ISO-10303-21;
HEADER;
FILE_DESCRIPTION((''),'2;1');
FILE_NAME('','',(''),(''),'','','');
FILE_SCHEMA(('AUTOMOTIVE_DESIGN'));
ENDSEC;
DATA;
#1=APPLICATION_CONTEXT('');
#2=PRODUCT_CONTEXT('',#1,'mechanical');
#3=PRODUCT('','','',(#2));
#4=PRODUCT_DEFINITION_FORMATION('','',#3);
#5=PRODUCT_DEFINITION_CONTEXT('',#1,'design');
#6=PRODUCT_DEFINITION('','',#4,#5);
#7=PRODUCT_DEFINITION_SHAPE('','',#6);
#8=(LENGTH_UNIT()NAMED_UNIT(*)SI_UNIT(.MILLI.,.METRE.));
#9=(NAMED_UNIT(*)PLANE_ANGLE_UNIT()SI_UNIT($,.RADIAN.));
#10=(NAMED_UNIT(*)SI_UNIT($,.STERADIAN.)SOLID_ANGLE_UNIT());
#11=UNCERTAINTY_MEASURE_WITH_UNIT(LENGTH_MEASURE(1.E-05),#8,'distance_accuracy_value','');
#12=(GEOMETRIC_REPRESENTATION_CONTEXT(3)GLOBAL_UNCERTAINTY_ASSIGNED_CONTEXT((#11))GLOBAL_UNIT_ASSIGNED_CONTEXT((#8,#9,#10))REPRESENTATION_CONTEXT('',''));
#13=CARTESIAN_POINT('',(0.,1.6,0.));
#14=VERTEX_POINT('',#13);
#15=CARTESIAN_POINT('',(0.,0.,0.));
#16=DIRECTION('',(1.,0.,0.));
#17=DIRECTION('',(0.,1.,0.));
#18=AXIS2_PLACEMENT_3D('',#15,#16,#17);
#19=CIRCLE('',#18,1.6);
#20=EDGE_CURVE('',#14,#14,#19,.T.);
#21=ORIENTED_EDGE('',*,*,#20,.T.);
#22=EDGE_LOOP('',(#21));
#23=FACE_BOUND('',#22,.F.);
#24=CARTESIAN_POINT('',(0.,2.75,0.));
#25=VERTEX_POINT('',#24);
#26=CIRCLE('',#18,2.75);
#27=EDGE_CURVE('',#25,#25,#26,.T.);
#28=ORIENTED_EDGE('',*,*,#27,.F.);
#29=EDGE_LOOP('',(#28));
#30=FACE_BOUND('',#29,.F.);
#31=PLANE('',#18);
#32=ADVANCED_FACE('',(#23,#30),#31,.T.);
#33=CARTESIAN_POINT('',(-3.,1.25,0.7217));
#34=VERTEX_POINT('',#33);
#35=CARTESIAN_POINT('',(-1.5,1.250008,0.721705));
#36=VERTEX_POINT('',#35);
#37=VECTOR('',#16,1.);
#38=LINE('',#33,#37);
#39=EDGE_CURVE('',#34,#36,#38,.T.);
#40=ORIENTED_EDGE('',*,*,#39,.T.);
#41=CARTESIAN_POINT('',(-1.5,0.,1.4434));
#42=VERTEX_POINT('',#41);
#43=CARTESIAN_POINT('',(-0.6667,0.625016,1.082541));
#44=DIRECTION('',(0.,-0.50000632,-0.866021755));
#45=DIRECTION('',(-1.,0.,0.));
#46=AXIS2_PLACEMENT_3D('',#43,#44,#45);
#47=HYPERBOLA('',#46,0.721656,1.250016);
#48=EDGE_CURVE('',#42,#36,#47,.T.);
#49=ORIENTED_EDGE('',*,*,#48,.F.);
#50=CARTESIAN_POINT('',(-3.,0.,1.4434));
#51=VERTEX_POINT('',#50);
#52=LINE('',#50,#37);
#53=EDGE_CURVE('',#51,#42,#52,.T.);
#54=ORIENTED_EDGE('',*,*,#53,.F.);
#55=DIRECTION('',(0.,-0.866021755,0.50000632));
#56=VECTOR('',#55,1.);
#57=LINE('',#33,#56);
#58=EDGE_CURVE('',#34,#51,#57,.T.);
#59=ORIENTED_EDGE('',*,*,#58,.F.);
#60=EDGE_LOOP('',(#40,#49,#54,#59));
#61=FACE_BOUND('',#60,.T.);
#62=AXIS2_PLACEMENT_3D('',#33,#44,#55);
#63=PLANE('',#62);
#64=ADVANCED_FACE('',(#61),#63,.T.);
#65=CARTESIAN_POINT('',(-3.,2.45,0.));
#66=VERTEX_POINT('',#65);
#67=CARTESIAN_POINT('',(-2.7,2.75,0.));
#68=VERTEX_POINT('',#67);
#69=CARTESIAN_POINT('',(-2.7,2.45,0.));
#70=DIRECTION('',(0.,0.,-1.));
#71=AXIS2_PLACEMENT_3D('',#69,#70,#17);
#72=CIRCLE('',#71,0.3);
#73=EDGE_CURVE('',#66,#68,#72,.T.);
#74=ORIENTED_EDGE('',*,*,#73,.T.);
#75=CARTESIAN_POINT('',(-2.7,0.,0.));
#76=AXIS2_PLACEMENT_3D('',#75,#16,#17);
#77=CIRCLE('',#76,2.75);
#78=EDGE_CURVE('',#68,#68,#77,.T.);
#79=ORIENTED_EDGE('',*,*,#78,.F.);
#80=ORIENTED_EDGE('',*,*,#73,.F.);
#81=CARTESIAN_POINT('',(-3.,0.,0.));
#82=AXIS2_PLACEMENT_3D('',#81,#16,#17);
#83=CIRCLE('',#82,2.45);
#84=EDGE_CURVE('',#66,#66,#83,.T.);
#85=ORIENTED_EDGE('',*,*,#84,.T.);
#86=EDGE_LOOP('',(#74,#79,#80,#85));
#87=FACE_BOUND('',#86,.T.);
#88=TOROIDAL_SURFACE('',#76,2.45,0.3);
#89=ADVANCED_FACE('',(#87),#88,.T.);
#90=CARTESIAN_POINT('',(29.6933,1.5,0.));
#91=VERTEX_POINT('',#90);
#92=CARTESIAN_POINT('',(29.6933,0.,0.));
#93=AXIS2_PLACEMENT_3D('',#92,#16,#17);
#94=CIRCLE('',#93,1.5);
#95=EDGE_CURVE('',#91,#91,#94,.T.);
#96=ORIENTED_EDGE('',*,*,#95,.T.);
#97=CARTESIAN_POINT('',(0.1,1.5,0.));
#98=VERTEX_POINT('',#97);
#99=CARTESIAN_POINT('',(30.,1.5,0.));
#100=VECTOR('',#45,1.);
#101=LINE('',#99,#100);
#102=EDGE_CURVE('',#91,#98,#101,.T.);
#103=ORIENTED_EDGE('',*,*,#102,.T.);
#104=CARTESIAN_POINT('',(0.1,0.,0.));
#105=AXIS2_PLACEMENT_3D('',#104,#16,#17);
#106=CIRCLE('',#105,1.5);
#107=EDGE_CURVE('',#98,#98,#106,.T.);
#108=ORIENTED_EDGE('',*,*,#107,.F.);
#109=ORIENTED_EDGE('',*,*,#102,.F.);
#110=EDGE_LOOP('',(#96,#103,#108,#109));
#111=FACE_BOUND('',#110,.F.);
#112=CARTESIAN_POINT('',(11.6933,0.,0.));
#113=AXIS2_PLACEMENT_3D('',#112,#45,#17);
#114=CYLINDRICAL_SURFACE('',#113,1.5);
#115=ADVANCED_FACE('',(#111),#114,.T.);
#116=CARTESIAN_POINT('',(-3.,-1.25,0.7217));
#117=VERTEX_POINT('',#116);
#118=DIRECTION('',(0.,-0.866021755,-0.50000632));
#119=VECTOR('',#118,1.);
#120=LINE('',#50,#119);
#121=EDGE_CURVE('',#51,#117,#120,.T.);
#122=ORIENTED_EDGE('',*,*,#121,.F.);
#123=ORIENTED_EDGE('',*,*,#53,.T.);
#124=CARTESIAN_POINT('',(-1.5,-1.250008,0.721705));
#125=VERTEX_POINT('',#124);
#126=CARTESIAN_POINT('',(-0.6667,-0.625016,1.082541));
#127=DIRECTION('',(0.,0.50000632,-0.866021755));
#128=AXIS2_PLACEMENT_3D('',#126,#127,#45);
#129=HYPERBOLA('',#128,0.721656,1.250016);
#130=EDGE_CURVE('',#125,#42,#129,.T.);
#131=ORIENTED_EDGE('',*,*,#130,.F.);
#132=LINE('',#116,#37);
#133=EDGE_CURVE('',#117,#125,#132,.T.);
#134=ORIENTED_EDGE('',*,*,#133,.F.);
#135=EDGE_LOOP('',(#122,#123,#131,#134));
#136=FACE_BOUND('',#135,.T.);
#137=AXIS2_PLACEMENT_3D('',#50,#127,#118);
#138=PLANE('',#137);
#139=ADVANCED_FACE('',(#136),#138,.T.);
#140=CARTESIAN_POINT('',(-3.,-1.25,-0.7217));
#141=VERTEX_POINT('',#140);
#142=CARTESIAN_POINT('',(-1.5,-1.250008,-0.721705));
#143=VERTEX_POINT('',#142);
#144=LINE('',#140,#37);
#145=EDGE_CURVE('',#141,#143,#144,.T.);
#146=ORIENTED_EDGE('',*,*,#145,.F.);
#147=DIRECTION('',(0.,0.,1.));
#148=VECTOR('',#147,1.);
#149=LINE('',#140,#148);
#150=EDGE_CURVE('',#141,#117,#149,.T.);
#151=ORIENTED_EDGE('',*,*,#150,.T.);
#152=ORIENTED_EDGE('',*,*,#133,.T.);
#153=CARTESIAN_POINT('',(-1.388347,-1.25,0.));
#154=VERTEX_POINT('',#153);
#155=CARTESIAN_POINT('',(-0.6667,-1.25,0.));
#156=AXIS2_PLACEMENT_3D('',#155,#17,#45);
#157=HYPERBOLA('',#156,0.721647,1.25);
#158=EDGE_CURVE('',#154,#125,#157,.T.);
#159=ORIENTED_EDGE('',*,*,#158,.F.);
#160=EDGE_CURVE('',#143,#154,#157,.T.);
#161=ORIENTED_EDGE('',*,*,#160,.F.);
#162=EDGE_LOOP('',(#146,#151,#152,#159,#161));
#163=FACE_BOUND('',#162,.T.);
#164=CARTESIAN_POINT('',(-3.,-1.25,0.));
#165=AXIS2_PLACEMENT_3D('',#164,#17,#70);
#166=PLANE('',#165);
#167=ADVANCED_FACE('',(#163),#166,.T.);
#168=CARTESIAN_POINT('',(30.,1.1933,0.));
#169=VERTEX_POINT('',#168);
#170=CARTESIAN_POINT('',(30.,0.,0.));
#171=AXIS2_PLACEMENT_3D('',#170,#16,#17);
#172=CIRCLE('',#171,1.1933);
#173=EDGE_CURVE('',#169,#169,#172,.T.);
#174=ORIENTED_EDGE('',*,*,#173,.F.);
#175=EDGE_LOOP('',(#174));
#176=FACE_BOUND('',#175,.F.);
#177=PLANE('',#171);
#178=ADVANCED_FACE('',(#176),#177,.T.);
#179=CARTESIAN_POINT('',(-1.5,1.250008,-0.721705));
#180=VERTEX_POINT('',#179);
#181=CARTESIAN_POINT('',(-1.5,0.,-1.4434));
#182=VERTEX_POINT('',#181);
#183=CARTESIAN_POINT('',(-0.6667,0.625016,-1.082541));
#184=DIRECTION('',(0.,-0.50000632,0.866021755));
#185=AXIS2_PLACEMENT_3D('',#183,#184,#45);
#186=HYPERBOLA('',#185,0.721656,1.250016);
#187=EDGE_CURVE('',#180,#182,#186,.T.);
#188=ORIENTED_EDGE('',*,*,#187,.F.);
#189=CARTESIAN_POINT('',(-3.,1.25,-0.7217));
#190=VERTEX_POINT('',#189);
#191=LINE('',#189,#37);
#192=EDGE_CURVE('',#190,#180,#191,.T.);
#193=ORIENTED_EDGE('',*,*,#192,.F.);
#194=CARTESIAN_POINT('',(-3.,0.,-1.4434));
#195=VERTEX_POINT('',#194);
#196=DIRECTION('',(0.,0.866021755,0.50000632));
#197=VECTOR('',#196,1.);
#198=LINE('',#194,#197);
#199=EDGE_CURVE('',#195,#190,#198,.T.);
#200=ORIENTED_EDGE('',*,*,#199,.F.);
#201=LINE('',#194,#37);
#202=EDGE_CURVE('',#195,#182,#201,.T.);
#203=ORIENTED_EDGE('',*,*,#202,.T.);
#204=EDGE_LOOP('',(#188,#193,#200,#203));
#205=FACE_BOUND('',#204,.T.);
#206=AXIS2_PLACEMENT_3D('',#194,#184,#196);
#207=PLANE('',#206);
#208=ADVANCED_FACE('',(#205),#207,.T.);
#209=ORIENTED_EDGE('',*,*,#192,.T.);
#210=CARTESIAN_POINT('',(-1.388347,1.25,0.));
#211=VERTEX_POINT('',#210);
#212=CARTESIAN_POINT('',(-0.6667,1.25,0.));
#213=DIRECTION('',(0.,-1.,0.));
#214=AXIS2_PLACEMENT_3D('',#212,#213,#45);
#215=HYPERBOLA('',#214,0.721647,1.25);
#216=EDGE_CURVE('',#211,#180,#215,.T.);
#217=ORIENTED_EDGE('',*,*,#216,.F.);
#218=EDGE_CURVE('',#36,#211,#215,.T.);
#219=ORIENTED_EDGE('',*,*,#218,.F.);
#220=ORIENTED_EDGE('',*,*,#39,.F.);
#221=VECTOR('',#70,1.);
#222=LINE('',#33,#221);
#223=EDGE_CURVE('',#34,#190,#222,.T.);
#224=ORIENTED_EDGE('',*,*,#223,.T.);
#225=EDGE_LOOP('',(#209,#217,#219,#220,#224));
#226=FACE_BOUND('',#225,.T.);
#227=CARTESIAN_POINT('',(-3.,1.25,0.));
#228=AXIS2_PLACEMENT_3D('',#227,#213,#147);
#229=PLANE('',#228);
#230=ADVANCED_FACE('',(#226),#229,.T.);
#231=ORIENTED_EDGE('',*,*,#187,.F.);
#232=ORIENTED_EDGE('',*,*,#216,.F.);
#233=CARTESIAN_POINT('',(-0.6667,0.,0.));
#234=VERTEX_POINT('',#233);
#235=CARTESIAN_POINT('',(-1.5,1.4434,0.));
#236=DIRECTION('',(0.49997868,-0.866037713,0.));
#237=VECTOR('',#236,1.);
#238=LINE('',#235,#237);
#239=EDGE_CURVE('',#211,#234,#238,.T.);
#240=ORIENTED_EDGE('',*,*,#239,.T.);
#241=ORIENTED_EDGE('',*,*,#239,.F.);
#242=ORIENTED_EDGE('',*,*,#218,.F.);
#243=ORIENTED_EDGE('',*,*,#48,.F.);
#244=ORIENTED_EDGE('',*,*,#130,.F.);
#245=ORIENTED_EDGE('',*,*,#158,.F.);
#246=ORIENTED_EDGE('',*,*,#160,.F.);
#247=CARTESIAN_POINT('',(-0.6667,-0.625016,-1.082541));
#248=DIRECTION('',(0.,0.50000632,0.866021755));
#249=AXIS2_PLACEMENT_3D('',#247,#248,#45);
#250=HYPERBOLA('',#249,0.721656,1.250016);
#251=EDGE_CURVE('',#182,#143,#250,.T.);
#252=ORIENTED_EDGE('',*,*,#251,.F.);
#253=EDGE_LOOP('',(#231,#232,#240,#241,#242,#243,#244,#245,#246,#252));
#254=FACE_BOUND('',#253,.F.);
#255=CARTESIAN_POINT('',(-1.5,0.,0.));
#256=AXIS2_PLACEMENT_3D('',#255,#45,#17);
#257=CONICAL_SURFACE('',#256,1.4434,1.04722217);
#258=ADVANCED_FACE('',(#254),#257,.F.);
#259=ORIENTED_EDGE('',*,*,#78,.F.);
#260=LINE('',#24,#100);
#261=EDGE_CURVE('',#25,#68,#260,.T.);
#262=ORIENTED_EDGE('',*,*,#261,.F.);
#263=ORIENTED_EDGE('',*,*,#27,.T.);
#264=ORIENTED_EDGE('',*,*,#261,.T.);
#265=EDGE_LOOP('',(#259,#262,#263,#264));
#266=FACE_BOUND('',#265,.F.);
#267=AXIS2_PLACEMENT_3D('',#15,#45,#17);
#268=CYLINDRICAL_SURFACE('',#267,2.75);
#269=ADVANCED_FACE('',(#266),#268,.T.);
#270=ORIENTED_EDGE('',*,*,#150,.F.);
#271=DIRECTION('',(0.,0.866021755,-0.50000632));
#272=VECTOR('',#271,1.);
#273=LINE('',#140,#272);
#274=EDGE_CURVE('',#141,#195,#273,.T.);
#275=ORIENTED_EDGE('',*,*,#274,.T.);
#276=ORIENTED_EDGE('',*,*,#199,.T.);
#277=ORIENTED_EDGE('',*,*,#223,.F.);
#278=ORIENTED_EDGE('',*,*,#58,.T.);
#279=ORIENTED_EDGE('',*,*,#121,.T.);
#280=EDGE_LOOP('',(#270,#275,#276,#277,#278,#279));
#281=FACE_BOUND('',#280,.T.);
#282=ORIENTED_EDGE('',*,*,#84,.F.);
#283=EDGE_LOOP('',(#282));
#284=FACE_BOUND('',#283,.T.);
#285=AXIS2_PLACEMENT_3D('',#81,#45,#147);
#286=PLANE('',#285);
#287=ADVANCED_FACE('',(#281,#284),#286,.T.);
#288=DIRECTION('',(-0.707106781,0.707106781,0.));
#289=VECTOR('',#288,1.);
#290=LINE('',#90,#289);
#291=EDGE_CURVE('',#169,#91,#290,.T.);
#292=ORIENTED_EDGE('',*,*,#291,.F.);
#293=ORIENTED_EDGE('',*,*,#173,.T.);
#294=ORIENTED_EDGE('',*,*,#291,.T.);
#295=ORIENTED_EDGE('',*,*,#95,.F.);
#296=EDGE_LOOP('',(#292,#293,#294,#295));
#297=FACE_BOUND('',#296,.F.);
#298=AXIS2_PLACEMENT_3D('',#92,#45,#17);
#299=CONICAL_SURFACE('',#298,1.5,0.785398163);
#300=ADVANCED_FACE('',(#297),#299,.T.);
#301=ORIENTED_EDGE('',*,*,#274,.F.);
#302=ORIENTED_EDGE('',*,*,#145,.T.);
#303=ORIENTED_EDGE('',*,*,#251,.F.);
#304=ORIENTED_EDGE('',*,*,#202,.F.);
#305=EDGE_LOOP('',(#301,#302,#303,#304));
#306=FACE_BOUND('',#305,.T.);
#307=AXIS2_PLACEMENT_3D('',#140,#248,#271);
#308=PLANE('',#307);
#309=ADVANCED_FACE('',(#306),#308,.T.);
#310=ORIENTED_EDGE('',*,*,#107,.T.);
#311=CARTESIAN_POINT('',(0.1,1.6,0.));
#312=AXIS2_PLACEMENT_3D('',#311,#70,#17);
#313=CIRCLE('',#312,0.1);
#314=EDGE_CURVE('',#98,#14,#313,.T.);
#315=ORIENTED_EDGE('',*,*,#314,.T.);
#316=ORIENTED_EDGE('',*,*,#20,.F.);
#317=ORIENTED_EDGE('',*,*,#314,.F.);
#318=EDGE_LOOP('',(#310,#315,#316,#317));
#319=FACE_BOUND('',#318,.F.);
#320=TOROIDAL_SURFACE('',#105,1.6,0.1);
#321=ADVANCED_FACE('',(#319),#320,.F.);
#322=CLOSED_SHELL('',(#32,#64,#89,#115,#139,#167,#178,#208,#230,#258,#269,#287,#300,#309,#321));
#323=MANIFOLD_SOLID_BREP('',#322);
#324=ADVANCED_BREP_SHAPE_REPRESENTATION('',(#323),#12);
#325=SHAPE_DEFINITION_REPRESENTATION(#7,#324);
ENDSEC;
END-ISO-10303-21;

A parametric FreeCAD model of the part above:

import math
import FreeCAD as App
import Part
import Sketcher
from FreeCAD import Vector
Q = App.Units.Quantity


def edges_at(feature, points):
    """Names of the edges that pass closest to the given points."""
    edges = feature.Shape.Edges
    near = lambda p: min(range(len(edges)), key=lambda i: edges[i].distToShape(Part.Vertex(*p))[0])
    return sorted({f"Edge{near(p) + 1}" for p in points})


def add_polygon(sketch, points):
    """Adds a closed chain of lines whose ends are joined by coincident constraints."""
    first, n = sketch.GeometryCount, len(points)
    for a, b in zip(points, points[1:] + points[:1]):
        sketch.addGeometry(Part.LineSegment(App.Vector(*a, 0), App.Vector(*b, 0)), False)
    for i in range(n):
        sketch.addConstraint(Sketcher.Constraint("Coincident", first + i, 2, first + (i + 1) % n, 1))

doc = App.newDocument("Part")
body = doc.addObject("PartDesign::Body", "Body")

# Sketch on XY plane
sketch1 = body.newObject("Sketcher::SketchObject", "Sketch")
sketch1.AttachmentSupport = (doc.getObject("XY_Plane"), [""])
sketch1.MapMode = "FlatFace"
add_polygon(sketch1, [(-1.5, 1.4), (-0.7, 0), (30, 0), (30, 1.5), (0, 1.5), (0, 2.8), (-3, 2.8), (-3, 1.4)])  # lines 0-7
sketch1.addConstraint(Sketcher.Constraint("Horizontal", 1))
sketch1.addConstraint(Sketcher.Constraint("Vertical", 2))
sketch1.addConstraint(Sketcher.Constraint("Horizontal", 3))
sketch1.addConstraint(Sketcher.Constraint("Vertical", 4))
sketch1.addConstraint(Sketcher.Constraint("Horizontal", 5))
sketch1.addConstraint(Sketcher.Constraint("Vertical", 6))
sketch1.addConstraint(Sketcher.Constraint("Horizontal", 7))
sketch1.addConstraint(Sketcher.Constraint("PointOnObject", 0, 2, -1))
sketch1.addConstraint(Sketcher.Constraint("PointOnObject", 3, 2, -2))
sketch1.addConstraint(Sketcher.Constraint("Equal", 7, 2))
sketch1.addConstraint(Sketcher.Constraint("DistanceX", 3, 2, 3, 1, 30.0))
sketch1.addConstraint(Sketcher.Constraint("DistanceX", 5, 2, 5, 1, 3.0))
sketch1.addConstraint(Sketcher.Constraint("DistanceX", 7, 1, 7, 2, 1.5))
sketch1.addConstraint(Sketcher.Constraint("DistanceY", 4, 1, 4, 2, 1.25))
sketch1.addConstraint(Sketcher.Constraint("DistanceX", 1, 1, 1, 2, 30.6667))
sketch1.addConstraint(Sketcher.Constraint("DistanceY", 6, 2, 6, 1, 1.3066))
revolution = body.newObject("PartDesign::Revolution", "Revolution")
revolution.Profile = sketch1
revolution.ReferenceAxis = (sketch1, ["H_Axis"])
revolution.Angle = 360

# Sketch on YZ plane
sketch2 = body.newObject("Sketcher::SketchObject", "Sketch001")
sketch2.AttachmentSupport = (doc.getObject("YZ_Plane"), [""])
sketch2.MapMode = "FlatFace"
sketch2.AttachmentOffset = App.Placement(Vector(0, 0, -3), App.Rotation())
sketch2.addGeometry(Part.LineSegment(Vector(1.2, 0.7, 0), Vector(0, 1.4, 0)), False)
sketch2.addGeometry(Part.ArcOfCircle(Part.Circle(Vector(0, 0, 0), Vector(0, 0, 1), 1.4), math.radians(30), math.radians(90)), False)
sketch2.addGeometry(Part.ArcOfCircle(Part.Circle(Vector(0, 0, 0), Vector(0, 0, 1), 1.4), math.radians(90), math.radians(150)), False)
sketch2.addGeometry(Part.LineSegment(Vector(0, 1.4, 0), Vector(-1.2, 0.7, 0)), False)
sketch2.addGeometry(Part.ArcOfCircle(Part.Circle(Vector(0, 0, 0), Vector(0, 0, 1), 1.4), math.radians(-30), math.radians(30)), False)
sketch2.addGeometry(Part.LineSegment(Vector(1.2, 0.7, 0), Vector(1.2, -0.7, 0)), False)
sketch2.addGeometry(Part.LineSegment(Vector(-1.2, 0.7, 0), Vector(-1.2, -0.7, 0)), False)
sketch2.addGeometry(Part.ArcOfCircle(Part.Circle(Vector(0, 0, 0), Vector(0, 0, 1), 1.4), math.radians(150), math.radians(210)), False)
sketch2.addGeometry(Part.LineSegment(Vector(-1.2, -0.7, 0), Vector(0, -1.4, 0)), False)
sketch2.addGeometry(Part.ArcOfCircle(Part.Circle(Vector(0, 0, 0), Vector(0, 0, 1), 1.4), math.radians(-150), math.radians(-90)), False)
sketch2.addGeometry(Part.ArcOfCircle(Part.Circle(Vector(0, 0, 0), Vector(0, 0, 1), 1.4), math.radians(-90), math.radians(-30)), False)
sketch2.addGeometry(Part.LineSegment(Vector(0, -1.4, 0), Vector(1.2, -0.7, 0)), False)
sketch2.addConstraint(Sketcher.Constraint("Coincident", 0, 1, 1, 1))
sketch2.addConstraint(Sketcher.Constraint("Coincident", 1, 2, 0, 2))
sketch2.addConstraint(Sketcher.Constraint("Coincident", 2, 1, 3, 1))
sketch2.addConstraint(Sketcher.Constraint("Coincident", 3, 2, 2, 2))
sketch2.addConstraint(Sketcher.Constraint("Coincident", 4, 1, 5, 2))
sketch2.addConstraint(Sketcher.Constraint("Coincident", 5, 1, 4, 2))
sketch2.addConstraint(Sketcher.Constraint("Coincident", 6, 1, 7, 1))
sketch2.addConstraint(Sketcher.Constraint("Coincident", 7, 2, 6, 2))
sketch2.addConstraint(Sketcher.Constraint("Coincident", 8, 1, 9, 1))
sketch2.addConstraint(Sketcher.Constraint("Coincident", 9, 2, 8, 2))
sketch2.addConstraint(Sketcher.Constraint("Coincident", 10, 1, 11, 1))
sketch2.addConstraint(Sketcher.Constraint("Coincident", 11, 2, 10, 2))
sketch2.addConstraint(Sketcher.Constraint("Vertical", 5))
sketch2.addConstraint(Sketcher.Constraint("Vertical", 6))
sketch2.addConstraint(Sketcher.Constraint("Coincident", 1, 3, -1, 1))
sketch2.addConstraint(Sketcher.Constraint("Coincident", 2, 3, -1, 1))
sketch2.addConstraint(Sketcher.Constraint("Coincident", 4, 3, -1, 1))
sketch2.addConstraint(Sketcher.Constraint("Coincident", 7, 3, -1, 1))
sketch2.addConstraint(Sketcher.Constraint("Coincident", 9, 3, -1, 1))
sketch2.addConstraint(Sketcher.Constraint("Coincident", 10, 3, -1, 1))
sketch2.addConstraint(Sketcher.Constraint("Coincident", 2, 1, 1, 2))
sketch2.addConstraint(Sketcher.Constraint("Coincident", 5, 1, 0, 1))
sketch2.addConstraint(Sketcher.Constraint("Coincident", 6, 1, 3, 2))
sketch2.addConstraint(Sketcher.Constraint("Coincident", 8, 1, 7, 2))
sketch2.addConstraint(Sketcher.Constraint("Coincident", 10, 1, 9, 2))
sketch2.addConstraint(Sketcher.Constraint("PointOnObject", 1, 2, -2))
sketch2.addConstraint(Sketcher.Constraint("PointOnObject", 9, 2, -2))
sketch2.addConstraint(Sketcher.Constraint("Parallel", 0, 8))
sketch2.addConstraint(Sketcher.Constraint("Parallel", 3, 11))
sketch2.addConstraint(Sketcher.Constraint("Angle", 0, Q("149.9996 deg")))
sketch2.addConstraint(Sketcher.Constraint("Radius", 1, 1.4434))
pad1 = body.newObject("PartDesign::Pad", "Pad")
pad1.Profile = sketch2
pad1.Type = "UpToFirst"
doc.recompute()

fillet = body.newObject("PartDesign::Fillet", "Fillet")
fillet.Base = (pad1, edges_at(pad1, [(-3, -2.75, 0)]))
fillet.Radius = 0.3
doc.recompute()

chamfer = body.newObject("PartDesign::Chamfer", "Chamfer")
chamfer.Base = (fillet, edges_at(fillet, [(30, -1.5, 0)]))
chamfer.ChamferType = "Two distances"
chamfer.Size = 0.3067
chamfer.Size2 = 0.3067
doc.recompute()

fillet2 = body.newObject("PartDesign::Fillet", "Fillet001")
fillet2.Base = (chamfer, edges_at(chamfer, [(0, -1.5, 0)]))
fillet2.Radius = 0.1

doc.recompute()
